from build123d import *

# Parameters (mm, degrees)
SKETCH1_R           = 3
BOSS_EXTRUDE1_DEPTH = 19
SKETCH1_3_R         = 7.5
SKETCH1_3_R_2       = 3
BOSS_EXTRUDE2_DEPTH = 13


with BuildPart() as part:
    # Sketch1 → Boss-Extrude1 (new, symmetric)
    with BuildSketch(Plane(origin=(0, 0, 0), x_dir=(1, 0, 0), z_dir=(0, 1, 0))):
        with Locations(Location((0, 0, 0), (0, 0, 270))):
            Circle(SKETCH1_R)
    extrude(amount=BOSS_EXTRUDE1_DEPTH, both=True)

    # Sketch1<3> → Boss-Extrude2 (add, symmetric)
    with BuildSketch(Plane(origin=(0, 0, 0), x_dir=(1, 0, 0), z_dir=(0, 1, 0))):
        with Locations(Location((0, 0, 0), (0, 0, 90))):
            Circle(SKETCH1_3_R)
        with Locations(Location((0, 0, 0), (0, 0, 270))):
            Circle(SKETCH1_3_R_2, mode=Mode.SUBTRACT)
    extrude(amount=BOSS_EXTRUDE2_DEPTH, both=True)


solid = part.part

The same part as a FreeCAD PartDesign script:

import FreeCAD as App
import Part
import Sketcher

V = App.Vector
Q = App.Units.Quantity

doc = App.newDocument("Part")
params = doc.addObject("Spreadsheet::Sheet", "Params")
for row, (alias, value) in enumerate([
    ("sketch1_diameter", "6 mm"),
    ("pad1_length", "38 mm"),
    ("sketch2_diameter", "15 mm"),
    ("sketch2_diameter2", "6 mm"),
    ("pad2_length", "26 mm"),
], start=1):
    params.set(f"A{row}", alias)
    params.set(f"B{row}", "=" + value)
    params.setAlias(f"B{row}", alias)

body = doc.addObject("PartDesign::Body", "Body")

# Sketch on XZ plane
sketch1 = body.newObject("Sketcher::SketchObject", "Sketch")
sketch1.AttachmentSupport = (doc.getObject("XZ_Plane"), [""])
sketch1.MapMode = "FlatFace"
sketch1.addGeometry(Part.Circle(V(0, 0, 0), V(0, 0, 1), 3), False)
sketch1.addConstraint([
    Sketcher.Constraint("Coincident", 0, 3, -1, 1),
    Sketcher.Constraint("Diameter", 0, Q("6 mm")),
])
sketch1.setExpression("Constraints[1]", "Params.sketch1_diameter")
pad1 = body.newObject("PartDesign::Pad", "Pad")
pad1.Profile = sketch1
pad1.setExpression("Length", "Params.pad1_length")
pad1.Midplane = True

# Sketch on XZ plane
sketch2 = body.newObject("Sketcher::SketchObject", "Sketch001")
sketch2.AttachmentSupport = (doc.getObject("XZ_Plane"), [""])
sketch2.MapMode = "FlatFace"
sketch2.addGeometry([
    Part.Circle(V(0, 0, 0), V(0, 0, 1), 7.5),
    Part.Circle(V(0, 0, 0), V(0, 0, 1), 3),
], False)
sketch2.addConstraint([
    Sketcher.Constraint("Coincident", 0, 3, -1, 1),
    Sketcher.Constraint("Coincident", 1, 3, -1, 1),
    Sketcher.Constraint("Diameter", 0, Q("15 mm")),
    Sketcher.Constraint("Diameter", 1, Q("6 mm")),
])
sketch2.setExpression("Constraints[2]", "Params.sketch2_diameter")
sketch2.setExpression("Constraints[3]", "Params.sketch2_diameter2")
pad2 = body.newObject("PartDesign::Pad", "Pad001")
pad2.Profile = sketch2
pad2.setExpression("Length", "Params.pad2_length")
pad2.Midplane = True

doc.recompute()
